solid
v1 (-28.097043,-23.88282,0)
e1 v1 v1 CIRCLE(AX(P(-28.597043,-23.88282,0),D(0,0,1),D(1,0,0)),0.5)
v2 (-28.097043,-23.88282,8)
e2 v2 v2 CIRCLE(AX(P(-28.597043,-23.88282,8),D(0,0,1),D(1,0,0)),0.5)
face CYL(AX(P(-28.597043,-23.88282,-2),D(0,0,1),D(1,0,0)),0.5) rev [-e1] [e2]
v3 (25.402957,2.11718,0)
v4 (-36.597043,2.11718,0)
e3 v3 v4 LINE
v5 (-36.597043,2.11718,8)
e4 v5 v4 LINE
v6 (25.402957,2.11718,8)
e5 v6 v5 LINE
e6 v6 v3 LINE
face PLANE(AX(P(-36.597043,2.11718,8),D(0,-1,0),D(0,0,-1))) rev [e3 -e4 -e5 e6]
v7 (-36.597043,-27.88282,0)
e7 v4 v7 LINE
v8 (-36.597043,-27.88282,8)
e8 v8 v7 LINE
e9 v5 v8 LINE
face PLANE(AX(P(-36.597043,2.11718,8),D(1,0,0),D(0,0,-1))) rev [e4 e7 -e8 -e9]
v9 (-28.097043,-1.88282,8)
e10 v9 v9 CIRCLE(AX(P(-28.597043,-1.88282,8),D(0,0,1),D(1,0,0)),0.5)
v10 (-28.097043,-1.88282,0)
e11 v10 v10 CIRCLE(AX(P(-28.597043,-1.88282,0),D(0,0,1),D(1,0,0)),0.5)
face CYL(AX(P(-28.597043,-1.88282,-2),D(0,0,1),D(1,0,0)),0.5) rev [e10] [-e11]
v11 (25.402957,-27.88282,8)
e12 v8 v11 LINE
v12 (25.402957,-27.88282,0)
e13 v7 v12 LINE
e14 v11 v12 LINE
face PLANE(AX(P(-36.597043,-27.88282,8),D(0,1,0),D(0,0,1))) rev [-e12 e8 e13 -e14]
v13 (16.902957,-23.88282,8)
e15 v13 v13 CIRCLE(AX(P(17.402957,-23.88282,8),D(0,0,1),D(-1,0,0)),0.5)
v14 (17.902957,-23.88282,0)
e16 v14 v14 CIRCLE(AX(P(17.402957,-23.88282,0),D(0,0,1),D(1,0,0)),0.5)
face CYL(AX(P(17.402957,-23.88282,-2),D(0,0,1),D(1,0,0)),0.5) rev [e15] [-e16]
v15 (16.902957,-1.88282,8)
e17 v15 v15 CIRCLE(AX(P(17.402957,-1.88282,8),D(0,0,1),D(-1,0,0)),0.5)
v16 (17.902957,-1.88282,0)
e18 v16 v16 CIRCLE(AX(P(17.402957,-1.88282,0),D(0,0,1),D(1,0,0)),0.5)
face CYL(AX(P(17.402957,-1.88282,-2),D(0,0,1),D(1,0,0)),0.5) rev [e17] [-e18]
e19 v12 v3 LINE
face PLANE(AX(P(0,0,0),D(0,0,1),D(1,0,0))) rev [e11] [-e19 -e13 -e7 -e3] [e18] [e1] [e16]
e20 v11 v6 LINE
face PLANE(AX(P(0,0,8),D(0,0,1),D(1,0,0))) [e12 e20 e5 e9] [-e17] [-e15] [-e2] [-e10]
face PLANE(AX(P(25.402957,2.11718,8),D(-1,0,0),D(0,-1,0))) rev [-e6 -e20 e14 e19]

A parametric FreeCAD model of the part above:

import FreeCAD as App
import Part
import Sketcher
from FreeCAD import Vector
Q = App.Units.Quantity


def add_polygon(sketch, points):
    """Adds a closed chain of lines whose ends are joined by coincident constraints."""
    first, n = sketch.GeometryCount, len(points)
    for a, b in zip(points, points[1:] + points[:1]):
        sketch.addGeometry(Part.LineSegment(App.Vector(*a, 0), App.Vector(*b, 0)), False)
    for i in range(n):
        sketch.addConstraint(Sketcher.Constraint("Coincident", first + i, 2, first + (i + 1) % n, 1))

doc = App.newDocument("Part")
body = doc.addObject("PartDesign::Body", "Body")

sketch1 = body.newObject("Sketcher::SketchObject", "Sketch")
sketch1.AttachmentSupport = (doc.getObject("XY_Plane"), [""])
sketch1.MapMode = "FlatFace"
add_polygon(sketch1, [(-36.597043, 2.11718), (-36.597043, -27.88282), (25.402957, -27.88282), (25.402957, 2.11718)])
sketch1.addConstraint(Sketcher.Constraint("Vertical", 0))
sketch1.addConstraint(Sketcher.Constraint("Horizontal", 1))
sketch1.addConstraint(Sketcher.Constraint("Vertical", 2))
sketch1.addConstraint(Sketcher.Constraint("Horizontal", 3))
sketch1.addConstraint(Sketcher.Constraint("DistanceX", 1, 1, 1, 2, Q("62 mm")))
sketch1.addConstraint(Sketcher.Constraint("DistanceY", 0, 2, 0, 1, Q("30 mm")))
sketch1.addConstraint(Sketcher.Constraint("DistanceY", 0, 2, -1, 1, Q("27.88282 mm")))
sketch1.addConstraint(Sketcher.Constraint("DistanceX", 0, 2, -1, 1, Q("36.597043 mm")))
pad1 = body.newObject("PartDesign::Pad", "Pad")
pad1.Profile = sketch1
pad1.Length = 8

sketch2 = body.newObject("Sketcher::SketchObject", "Sketch001")
sketch2.AttachmentSupport = (doc.getObject("XY_Plane"), [""])
sketch2.MapMode = "FlatFace"
sketch2.AttachmentOffset = App.Placement(Vector(0, 0, 8), App.Rotation())
sketch2.addGeometry(Part.Circle(Vector(-28.597043, -1.88282, 0), Vector(0, 0, 1), 0.5), False)
sketch2.addGeometry(Part.Circle(Vector(-28.597043, -23.88282, 0), Vector(0, 0, 1), 0.5), False)
sketch2.addGeometry(Part.Circle(Vector(17.402957, -1.88282, 0), Vector(0, 0, 1), 0.5), False)
sketch2.addGeometry(Part.Circle(Vector(17.402957, -23.88282, 0), Vector(0, 0, 1), 0.5), False)
sketch2.addConstraint(Sketcher.Constraint("Equal", 0, 1))
sketch2.addConstraint(Sketcher.Constraint("Equal", 1, 2))
sketch2.addConstraint(Sketcher.Constraint("Equal", 2, 3))
sketch2.addConstraint(Sketcher.Constraint("Horizontal", 0, 3, 2, 3))
sketch2.addConstraint(Sketcher.Constraint("Horizontal", 1, 3, 3, 3))
sketch2.addConstraint(Sketcher.Constraint("Vertical", 0, 3, 1, 3))
sketch2.addConstraint(Sketcher.Constraint("Vertical", 2, 3, 3, 3))
sketch2.addConstraint(Sketcher.Constraint("Diameter", 0, Q("1 mm")))
sketch2.addConstraint(Sketcher.Constraint("DistanceY", 1, 3, 0, 3, Q("22 mm")))
sketch2.addConstraint(Sketcher.Constraint("DistanceX", 0, 3, 2, 3, Q("46 mm")))
sketch2.addConstraint(Sketcher.Constraint("DistanceY", 0, 3, -1, 1, Q("1.88282 mm")))
sketch2.addConstraint(Sketcher.Constraint("DistanceX", 0, 3, -1, 1, Q("28.597043 mm")))
pocket1 = body.newObject("PartDesign::Pocket", "Pocket")
pocket1.Profile = sketch2
pocket1.Length = 10

doc.recompute()
